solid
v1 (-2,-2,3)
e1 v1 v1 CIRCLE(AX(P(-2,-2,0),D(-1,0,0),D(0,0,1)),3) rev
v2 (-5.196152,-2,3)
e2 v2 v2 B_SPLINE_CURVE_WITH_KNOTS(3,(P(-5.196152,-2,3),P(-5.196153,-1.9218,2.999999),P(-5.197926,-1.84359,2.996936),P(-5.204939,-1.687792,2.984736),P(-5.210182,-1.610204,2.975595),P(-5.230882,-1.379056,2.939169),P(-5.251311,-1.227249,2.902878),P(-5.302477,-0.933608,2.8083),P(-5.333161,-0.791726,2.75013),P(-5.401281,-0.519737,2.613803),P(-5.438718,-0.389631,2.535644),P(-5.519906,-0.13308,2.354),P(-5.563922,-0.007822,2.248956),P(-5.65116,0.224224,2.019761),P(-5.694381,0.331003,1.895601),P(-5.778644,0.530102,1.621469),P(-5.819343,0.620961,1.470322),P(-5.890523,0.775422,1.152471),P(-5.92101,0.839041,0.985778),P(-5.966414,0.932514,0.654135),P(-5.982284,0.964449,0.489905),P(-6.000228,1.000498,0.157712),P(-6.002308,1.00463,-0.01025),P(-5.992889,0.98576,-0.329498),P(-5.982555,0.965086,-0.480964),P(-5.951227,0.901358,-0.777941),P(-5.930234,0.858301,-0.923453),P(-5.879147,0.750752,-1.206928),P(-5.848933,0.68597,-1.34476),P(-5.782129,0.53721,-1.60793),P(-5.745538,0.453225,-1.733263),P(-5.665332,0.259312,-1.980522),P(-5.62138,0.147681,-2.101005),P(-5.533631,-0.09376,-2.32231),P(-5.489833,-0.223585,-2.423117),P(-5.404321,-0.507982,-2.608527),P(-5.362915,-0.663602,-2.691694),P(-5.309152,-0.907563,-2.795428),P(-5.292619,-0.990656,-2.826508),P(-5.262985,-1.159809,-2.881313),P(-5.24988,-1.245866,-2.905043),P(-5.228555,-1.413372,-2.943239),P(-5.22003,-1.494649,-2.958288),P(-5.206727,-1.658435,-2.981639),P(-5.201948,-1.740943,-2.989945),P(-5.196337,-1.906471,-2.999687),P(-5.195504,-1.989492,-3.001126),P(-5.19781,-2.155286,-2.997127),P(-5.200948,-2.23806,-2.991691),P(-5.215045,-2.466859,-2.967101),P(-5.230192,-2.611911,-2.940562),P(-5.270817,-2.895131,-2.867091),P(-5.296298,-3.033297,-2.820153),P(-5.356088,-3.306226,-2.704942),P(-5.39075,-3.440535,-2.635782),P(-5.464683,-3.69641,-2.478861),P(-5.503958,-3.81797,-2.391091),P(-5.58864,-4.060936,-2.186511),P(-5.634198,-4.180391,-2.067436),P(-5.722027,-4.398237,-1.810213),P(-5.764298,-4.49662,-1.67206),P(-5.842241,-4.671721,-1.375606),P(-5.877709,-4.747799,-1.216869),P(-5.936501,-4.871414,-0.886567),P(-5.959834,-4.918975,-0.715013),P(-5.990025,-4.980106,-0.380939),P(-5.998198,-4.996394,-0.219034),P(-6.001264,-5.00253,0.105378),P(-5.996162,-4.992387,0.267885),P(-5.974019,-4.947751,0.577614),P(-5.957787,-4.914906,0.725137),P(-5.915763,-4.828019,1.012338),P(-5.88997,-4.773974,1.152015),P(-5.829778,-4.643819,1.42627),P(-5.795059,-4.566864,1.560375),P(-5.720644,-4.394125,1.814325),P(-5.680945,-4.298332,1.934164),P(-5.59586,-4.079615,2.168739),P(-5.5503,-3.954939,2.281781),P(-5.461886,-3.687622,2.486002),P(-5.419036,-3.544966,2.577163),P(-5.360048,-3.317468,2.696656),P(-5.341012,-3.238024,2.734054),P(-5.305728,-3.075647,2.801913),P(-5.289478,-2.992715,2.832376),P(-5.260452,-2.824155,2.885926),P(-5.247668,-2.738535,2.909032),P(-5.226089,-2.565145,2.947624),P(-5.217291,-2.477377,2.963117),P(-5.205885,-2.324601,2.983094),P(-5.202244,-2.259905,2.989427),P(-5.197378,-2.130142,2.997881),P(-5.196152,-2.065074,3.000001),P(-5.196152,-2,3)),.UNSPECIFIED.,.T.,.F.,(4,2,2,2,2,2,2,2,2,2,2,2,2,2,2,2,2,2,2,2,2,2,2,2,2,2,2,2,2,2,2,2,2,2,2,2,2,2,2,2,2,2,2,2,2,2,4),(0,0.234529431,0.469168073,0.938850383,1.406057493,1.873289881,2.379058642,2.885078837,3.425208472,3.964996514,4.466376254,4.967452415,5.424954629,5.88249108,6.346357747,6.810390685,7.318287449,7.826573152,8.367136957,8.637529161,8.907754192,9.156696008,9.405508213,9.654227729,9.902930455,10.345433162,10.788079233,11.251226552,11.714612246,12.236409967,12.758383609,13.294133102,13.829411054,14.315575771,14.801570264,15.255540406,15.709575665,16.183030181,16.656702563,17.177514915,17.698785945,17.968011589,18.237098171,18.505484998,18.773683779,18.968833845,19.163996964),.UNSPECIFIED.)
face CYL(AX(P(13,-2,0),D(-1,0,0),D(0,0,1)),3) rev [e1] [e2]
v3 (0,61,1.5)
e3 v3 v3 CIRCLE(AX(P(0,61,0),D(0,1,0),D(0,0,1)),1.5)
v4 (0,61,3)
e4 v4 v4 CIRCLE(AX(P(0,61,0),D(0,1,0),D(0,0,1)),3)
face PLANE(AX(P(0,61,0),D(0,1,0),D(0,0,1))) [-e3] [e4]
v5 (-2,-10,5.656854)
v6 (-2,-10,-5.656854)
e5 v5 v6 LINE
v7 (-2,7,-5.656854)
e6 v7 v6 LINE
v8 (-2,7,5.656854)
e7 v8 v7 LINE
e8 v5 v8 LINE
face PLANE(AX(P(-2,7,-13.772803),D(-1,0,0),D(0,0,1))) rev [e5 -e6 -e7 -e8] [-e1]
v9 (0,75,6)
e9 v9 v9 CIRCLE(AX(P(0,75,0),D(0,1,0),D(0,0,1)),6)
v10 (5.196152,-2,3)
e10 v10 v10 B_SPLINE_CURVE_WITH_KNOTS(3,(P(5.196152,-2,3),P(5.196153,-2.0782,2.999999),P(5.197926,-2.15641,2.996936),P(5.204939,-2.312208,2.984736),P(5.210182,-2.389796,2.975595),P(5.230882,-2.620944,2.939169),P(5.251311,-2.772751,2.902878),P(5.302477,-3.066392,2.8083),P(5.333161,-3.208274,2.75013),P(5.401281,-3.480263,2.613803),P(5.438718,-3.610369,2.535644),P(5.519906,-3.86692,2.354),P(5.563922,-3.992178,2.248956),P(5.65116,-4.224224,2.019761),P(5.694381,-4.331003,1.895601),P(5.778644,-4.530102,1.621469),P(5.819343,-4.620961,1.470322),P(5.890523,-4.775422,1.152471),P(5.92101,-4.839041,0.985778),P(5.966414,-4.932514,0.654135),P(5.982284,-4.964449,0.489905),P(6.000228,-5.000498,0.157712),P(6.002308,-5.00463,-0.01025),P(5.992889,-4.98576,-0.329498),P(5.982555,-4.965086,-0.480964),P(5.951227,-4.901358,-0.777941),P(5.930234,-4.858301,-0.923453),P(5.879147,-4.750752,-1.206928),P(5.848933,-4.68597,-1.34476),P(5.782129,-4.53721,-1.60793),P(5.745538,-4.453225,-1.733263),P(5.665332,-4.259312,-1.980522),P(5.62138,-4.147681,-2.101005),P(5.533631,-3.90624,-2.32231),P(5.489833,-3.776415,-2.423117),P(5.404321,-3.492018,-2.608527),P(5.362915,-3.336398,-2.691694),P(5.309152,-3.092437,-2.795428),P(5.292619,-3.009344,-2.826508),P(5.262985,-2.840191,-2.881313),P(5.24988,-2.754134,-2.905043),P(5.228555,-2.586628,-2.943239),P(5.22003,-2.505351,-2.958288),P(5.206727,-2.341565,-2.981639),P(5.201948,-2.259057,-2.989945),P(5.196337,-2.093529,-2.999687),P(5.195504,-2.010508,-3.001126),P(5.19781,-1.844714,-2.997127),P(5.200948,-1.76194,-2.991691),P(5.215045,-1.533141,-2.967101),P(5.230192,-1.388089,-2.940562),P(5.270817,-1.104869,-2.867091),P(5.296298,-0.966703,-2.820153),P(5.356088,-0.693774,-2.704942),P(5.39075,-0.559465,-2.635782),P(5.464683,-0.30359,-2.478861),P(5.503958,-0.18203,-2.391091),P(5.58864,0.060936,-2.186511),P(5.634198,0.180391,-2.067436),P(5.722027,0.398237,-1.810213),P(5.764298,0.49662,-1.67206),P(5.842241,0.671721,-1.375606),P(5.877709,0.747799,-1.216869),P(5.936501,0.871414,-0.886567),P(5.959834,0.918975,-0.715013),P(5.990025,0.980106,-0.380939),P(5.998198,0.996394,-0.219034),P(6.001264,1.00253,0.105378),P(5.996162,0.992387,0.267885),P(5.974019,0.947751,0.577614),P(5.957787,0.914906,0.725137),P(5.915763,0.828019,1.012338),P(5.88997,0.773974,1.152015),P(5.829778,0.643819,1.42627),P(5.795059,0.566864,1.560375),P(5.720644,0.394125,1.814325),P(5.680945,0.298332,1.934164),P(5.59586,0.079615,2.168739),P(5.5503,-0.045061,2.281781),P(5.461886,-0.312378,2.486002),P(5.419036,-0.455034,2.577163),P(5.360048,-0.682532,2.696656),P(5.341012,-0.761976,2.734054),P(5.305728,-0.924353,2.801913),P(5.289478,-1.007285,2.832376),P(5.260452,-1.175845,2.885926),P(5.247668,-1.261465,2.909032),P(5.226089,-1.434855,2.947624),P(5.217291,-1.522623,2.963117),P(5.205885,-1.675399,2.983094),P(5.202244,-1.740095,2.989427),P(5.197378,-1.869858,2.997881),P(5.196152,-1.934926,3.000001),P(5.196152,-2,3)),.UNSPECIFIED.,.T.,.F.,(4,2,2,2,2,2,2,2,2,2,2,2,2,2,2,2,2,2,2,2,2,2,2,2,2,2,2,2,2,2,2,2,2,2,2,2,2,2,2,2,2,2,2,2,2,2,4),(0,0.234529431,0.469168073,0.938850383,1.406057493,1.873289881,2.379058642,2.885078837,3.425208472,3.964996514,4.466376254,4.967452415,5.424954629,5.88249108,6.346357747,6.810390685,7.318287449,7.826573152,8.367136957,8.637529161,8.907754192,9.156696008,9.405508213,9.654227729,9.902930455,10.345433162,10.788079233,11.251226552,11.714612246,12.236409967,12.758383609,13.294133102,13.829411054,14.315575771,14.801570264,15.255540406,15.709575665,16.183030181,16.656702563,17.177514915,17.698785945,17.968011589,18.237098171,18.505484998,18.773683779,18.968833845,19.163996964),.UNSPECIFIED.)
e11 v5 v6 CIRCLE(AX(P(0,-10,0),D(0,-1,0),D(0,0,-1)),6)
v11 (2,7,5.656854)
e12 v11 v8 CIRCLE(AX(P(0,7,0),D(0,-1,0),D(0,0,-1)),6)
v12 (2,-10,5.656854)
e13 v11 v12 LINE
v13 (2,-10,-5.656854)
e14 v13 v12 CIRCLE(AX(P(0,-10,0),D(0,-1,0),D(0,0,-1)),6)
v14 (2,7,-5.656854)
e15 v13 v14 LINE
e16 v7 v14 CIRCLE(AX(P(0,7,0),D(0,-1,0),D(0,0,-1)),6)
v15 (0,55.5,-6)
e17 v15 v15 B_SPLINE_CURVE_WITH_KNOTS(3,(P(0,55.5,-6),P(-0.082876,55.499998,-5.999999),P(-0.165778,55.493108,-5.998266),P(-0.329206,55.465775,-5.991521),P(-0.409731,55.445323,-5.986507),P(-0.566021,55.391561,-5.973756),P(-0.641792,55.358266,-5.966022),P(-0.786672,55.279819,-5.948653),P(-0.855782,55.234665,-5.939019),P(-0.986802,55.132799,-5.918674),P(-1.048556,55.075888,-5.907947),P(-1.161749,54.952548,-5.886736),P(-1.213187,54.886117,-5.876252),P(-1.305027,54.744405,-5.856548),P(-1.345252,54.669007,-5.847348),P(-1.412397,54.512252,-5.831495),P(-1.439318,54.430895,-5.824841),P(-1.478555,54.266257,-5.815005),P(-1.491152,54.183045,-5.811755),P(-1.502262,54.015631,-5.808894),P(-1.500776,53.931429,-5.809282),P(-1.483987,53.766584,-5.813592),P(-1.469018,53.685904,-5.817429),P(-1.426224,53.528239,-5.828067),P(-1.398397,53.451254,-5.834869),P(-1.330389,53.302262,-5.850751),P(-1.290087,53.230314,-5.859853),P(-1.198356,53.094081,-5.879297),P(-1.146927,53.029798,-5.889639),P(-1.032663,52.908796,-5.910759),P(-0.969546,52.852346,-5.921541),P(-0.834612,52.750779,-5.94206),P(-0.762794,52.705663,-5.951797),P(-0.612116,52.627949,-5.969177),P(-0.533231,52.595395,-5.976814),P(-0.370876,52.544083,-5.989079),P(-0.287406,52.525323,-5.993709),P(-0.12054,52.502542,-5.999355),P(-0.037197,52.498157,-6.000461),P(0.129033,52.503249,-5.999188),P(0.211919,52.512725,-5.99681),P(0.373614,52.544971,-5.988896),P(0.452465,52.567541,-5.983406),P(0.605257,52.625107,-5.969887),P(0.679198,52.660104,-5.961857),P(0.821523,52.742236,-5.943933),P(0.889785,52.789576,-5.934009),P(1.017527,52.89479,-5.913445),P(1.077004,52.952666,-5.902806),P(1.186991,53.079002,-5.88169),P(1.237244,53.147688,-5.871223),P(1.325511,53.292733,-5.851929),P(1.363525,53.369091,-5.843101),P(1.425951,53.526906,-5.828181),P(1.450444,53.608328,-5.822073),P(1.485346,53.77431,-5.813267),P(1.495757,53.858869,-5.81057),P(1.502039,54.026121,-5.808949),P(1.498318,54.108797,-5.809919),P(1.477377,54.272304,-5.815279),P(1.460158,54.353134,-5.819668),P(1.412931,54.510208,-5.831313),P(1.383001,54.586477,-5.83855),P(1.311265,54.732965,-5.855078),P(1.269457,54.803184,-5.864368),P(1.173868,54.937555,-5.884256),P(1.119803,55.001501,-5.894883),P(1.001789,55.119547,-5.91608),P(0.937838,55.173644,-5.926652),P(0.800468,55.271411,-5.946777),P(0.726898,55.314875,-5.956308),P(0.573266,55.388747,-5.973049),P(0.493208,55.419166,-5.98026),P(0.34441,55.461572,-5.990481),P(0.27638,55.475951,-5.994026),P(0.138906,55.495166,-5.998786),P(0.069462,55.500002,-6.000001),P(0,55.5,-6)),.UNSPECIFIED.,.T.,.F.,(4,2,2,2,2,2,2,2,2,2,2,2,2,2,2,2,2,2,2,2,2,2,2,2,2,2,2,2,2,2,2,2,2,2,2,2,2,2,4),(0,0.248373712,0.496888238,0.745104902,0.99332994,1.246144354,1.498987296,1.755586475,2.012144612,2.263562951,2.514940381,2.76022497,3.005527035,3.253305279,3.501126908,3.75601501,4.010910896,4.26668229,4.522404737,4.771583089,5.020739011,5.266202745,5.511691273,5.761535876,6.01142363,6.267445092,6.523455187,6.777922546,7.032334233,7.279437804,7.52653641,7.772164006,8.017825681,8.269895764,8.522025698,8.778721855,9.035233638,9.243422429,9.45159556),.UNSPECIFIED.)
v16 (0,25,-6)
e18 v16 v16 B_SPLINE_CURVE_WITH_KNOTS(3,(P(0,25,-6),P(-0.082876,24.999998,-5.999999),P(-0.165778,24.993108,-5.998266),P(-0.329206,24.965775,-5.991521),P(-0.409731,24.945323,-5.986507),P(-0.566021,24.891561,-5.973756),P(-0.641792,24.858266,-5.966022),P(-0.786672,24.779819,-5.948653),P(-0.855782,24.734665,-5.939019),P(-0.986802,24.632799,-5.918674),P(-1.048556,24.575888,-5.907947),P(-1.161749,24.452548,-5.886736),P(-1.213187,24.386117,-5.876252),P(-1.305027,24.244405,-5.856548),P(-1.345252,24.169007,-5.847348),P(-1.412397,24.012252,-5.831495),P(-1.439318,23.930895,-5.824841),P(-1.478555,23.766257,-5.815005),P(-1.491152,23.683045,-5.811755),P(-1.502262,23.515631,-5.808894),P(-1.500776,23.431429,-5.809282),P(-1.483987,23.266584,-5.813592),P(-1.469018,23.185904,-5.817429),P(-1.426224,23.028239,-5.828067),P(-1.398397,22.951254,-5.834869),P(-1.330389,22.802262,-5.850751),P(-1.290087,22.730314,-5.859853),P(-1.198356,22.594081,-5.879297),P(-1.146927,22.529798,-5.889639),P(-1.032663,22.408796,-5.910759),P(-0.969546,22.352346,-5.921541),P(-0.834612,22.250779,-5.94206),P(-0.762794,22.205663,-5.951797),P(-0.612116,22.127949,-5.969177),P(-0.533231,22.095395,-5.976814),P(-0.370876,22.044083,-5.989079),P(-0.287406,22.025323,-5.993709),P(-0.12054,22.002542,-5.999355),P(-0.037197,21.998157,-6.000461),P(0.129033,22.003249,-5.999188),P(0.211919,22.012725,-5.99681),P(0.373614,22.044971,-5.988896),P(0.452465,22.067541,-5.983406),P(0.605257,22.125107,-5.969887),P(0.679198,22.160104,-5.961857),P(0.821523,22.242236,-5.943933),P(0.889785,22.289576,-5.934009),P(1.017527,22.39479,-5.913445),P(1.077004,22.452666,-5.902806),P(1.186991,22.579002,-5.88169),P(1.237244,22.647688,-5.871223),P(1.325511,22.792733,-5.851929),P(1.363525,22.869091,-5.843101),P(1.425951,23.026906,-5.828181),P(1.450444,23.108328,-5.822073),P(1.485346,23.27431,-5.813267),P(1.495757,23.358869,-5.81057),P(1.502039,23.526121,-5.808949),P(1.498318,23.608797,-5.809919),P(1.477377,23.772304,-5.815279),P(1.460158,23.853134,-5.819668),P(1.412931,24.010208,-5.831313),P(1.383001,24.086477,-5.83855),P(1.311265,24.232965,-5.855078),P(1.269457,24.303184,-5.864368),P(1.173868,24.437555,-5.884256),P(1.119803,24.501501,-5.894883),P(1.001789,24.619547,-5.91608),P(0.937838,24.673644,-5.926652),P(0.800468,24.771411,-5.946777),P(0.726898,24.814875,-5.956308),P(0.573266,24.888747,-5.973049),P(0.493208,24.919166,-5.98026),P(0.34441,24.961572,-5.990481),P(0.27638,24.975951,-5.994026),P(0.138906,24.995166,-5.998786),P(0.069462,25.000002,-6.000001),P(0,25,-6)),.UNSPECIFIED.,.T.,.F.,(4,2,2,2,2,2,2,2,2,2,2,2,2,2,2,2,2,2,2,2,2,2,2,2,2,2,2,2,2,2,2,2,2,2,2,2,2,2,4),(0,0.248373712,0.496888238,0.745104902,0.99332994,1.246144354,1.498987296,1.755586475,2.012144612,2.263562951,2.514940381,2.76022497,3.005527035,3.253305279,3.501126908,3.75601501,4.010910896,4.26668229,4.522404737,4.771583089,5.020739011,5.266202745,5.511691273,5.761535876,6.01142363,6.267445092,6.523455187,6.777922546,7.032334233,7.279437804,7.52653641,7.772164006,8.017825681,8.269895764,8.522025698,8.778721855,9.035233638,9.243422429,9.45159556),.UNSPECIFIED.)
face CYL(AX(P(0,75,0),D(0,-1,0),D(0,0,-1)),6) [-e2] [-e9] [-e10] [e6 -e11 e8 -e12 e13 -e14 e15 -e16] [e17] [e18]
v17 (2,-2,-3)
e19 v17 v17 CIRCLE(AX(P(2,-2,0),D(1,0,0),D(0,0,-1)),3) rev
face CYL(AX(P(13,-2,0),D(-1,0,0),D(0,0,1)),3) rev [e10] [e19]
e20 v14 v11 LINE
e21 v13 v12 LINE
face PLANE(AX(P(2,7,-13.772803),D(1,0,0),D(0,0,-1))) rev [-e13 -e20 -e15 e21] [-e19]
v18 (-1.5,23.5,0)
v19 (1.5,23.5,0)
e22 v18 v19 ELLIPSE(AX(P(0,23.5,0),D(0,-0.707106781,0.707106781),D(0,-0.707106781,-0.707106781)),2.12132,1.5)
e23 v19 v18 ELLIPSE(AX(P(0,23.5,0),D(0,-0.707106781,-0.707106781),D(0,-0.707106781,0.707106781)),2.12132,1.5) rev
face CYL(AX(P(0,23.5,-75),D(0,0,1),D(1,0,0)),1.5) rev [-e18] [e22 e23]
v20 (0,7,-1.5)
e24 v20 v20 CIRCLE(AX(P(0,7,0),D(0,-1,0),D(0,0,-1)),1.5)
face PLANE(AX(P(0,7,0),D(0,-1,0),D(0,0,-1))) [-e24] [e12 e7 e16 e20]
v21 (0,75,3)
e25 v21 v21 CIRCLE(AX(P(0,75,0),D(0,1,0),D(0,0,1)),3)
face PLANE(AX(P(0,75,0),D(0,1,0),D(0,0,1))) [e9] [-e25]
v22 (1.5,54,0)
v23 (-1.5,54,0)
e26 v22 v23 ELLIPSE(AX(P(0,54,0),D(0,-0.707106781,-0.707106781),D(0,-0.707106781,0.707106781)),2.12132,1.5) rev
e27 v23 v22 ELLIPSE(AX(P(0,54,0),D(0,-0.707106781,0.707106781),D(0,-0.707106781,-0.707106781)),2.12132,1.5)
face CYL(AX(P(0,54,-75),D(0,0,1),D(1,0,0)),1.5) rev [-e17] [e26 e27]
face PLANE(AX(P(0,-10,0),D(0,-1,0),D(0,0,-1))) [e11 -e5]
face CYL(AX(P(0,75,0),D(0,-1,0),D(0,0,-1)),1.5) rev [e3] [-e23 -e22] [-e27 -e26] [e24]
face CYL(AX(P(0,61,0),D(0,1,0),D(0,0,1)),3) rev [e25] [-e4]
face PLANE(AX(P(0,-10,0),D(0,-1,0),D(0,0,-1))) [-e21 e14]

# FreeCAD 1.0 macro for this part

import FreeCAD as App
import Part
import Sketcher
from FreeCAD import Vector
Q = App.Units.Quantity


def add_polygon(sketch, points):
    """Adds a closed chain of lines whose ends are joined by coincident constraints."""
    first, n = sketch.GeometryCount, len(points)
    for a, b in zip(points, points[1:] + points[:1]):
        sketch.addGeometry(Part.LineSegment(App.Vector(*a, 0), App.Vector(*b, 0)), False)
    for i in range(n):
        sketch.addConstraint(Sketcher.Constraint("Coincident", first + i, 2, first + (i + 1) % n, 1))

doc = App.newDocument("Part")
params = doc.addObject("Spreadsheet::Sheet", "Params")
for row, (alias, value) in enumerate([
    ("sketch1_diameter", "12 mm"),
    ("sketch1_diameter2", "3 mm"),
    ("pad1_length", "75 mm"),
    ("sketch2_diameter", "3 mm"),
    ("pocket1_length", "75 mm"),
    ("sketch3_diameter", "12 mm"),
    ("sketch3_diameter2", "3 mm"),
    ("pad2_length", "10 mm"),
    ("sketch4_width", "4 mm"),
    ("pocket2_length", "17 mm"),
    ("sketch5_diameter", "6 mm"),
    ("sketch6_diameter", "6 mm"),
    ("pocket4_length", "14 mm"),
], start=1):
    params.set(f"A{row}", alias)
    params.set(f"B{row}", "=" + value)
    params.setAlias(f"B{row}", alias)

body = doc.addObject("PartDesign::Body", "Body")

sketch1 = doc.addObject("Sketcher::SketchObject", "Sketch")
body.addObject(sketch1)
sketch1.AttachmentSupport = (doc.XZ_Plane, [""])
sketch1.MapMode = "FlatFace"
sketch1.addGeometry([
    Part.Circle(Vector(0, 0, 0), Vector(0, 0, 1), 6),
    Part.Circle(Vector(0, 0, 0), Vector(0, 0, 1), 1.5),
], False)
sketch1.addConstraint([
    Sketcher.Constraint("Coincident", 0, 3, -1, 1),
    Sketcher.Constraint("Coincident", 1, 3, -1, 1),
    Sketcher.Constraint("Diameter", 0, Q("12 mm")),
    Sketcher.Constraint("Diameter", 1, Q("3 mm")),
])
sketch1.setExpression("Constraints[2]", "Params.sketch1_diameter")
sketch1.setExpression("Constraints[3]", "Params.sketch1_diameter2")
pad1 = doc.addObject("PartDesign::Pad", "Pad")
body.addObject(pad1)
pad1.Profile = sketch1
pad1.setExpression("Length", "Params.pad1_length")
pad1.Reversed = True

sketch2 = doc.addObject("Sketcher::SketchObject", "Sketch001")
body.addObject(sketch2)
sketch2.AttachmentSupport = (doc.XY_Plane, [""])
sketch2.MapMode = "FlatFace"
sketch2.addGeometry([
    Part.Circle(Vector(0, 23.5, 0), Vector(0, 0, 1), 1.5),
    Part.Circle(Vector(0, 54, 0), Vector(0, 0, 1), 1.5),
], False)
sketch2.addConstraint([
    Sketcher.Constraint("Equal", 0, 1),
    Sketcher.Constraint("PointOnObject", 0, 3, -2),
    Sketcher.Constraint("PointOnObject", 1, 3, -2),
    Sketcher.Constraint("Diameter", 0, Q("3 mm")),
    Sketcher.Constraint("DistanceY", -1, 1, 1, 3, Q("54 mm")),
    Sketcher.Constraint("DistanceY", -1, 1, 0, 3, Q("23.5 mm")),
])
sketch2.setExpression("Constraints[3]", "Params.sketch2_diameter")
pocket1 = doc.addObject("PartDesign::Pocket", "Pocket")
body.addObject(pocket1)
pocket1.Profile = sketch2
pocket1.setExpression("Length", "Params.pocket1_length")

sketch3 = doc.addObject("Sketcher::SketchObject", "Sketch002")
body.addObject(sketch3)
sketch3.AttachmentSupport = (doc.XZ_Plane, [""])
sketch3.MapMode = "FlatFace"
sketch3.AttachmentOffset = App.Placement(Vector(0, 0, 10), App.Rotation())
sketch3.addGeometry([
    Part.Circle(Vector(0, 0, 0), Vector(0, 0, 1), 6),
    Part.Circle(Vector(0, 0, 0), Vector(0, 0, 1), 1.5),
], False)
sketch3.addConstraint([
    Sketcher.Constraint("Coincident", 0, 3, -1, 1),
    Sketcher.Constraint("Coincident", 1, 3, -1, 1),
    Sketcher.Constraint("Diameter", 0, Q("12 mm")),
    Sketcher.Constraint("Diameter", 1, Q("3 mm")),
])
sketch3.setExpression("Constraints[2]", "Params.sketch3_diameter")
sketch3.setExpression("Constraints[3]", "Params.sketch3_diameter2")
pad2 = doc.addObject("PartDesign::Pad", "Pad001")
body.addObject(pad2)
pad2.Profile = sketch3
pad2.setExpression("Length", "Params.pad2_length")
pad2.Reversed = True

sketch4 = doc.addObject("Sketcher::SketchObject", "Sketch003")
body.addObject(sketch4)
sketch4.AttachmentSupport = (doc.XZ_Plane, [""])
sketch4.MapMode = "FlatFace"
sketch4.AttachmentOffset = App.Placement(Vector(0, 0, 10), App.Rotation())
add_polygon(sketch4, [(-2, 13.8), (-2, -13.8), (2, -13.8), (2, 13.8)])
sketch4.addConstraint([
    Sketcher.Constraint("Vertical", 0),
    Sketcher.Constraint("Horizontal", 1),
    Sketcher.Constraint("Vertical", 2),
    Sketcher.Constraint("Horizontal", 3),
    Sketcher.Constraint("Symmetric", 0, 2, 2, 2, -1, 1),
    Sketcher.Constraint("DistanceX", 1, 1, 1, 2, Q("4 mm")),
    Sketcher.Constraint("DistanceY", 0, 2, 0, 1, Q("27.545605 mm")),
])
sketch4.setExpression("Constraints[9]", "Params.sketch4_width")
pocket2 = doc.addObject("PartDesign::Pocket", "Pocket001")
body.addObject(pocket2)
pocket2.Profile = sketch4
pocket2.setExpression("Length", "Params.pocket2_length")

sketch5 = doc.addObject("Sketcher::SketchObject", "Sketch004")
body.addObject(sketch5)
sketch5.AttachmentSupport = (doc.YZ_Plane, [""])
sketch5.MapMode = "FlatFace"
sketch5.AttachmentOffset = App.Placement(Vector(0, 0, -2), App.Rotation())
sketch5.addGeometry(Part.Circle(Vector(-2, 0, 0), Vector(0, 0, 1), 3), False)
sketch5.addConstraint([
    Sketcher.Constraint("PointOnObject", 0, 3, -1),
    Sketcher.Constraint("Diameter", 0, Q("6 mm")),
    Sketcher.Constraint("DistanceX", 0, 3, -1, 1, Q("2 mm")),
])
sketch5.setExpression("Constraints[1]", "Params.sketch5_diameter")
pocket3 = doc.addObject("PartDesign::Pocket", "Pocket002")
body.addObject(pocket3)
pocket3.Profile = sketch5
pocket3.Type = "ThroughAll"
pocket3.Midplane = True

sketch6 = doc.addObject("Sketcher::SketchObject", "Sketch005")
body.addObject(sketch6)
sketch6.AttachmentSupport = (doc.XZ_Plane, [""])
sketch6.MapMode = "FlatFace"
sketch6.AttachmentOffset = App.Placement(Vector(0, 0, -75), App.Rotation())
sketch6.addGeometry(Part.Circle(Vector(0, 0, 0), Vector(0, 0, 1), 3), False)
sketch6.addConstraint([
    Sketcher.Constraint("Coincident", 0, 3, -1, 1),
    Sketcher.Constraint("Diameter", 0, Q("6 mm")),
])
sketch6.setExpression("Constraints[1]", "Params.sketch6_diameter")
pocket4 = doc.addObject("PartDesign::Pocket", "Pocket003")
body.addObject(pocket4)
pocket4.Profile = sketch6
pocket4.setExpression("Length", "Params.pocket4_length")
pocket4.Reversed = True

doc.recompute()
